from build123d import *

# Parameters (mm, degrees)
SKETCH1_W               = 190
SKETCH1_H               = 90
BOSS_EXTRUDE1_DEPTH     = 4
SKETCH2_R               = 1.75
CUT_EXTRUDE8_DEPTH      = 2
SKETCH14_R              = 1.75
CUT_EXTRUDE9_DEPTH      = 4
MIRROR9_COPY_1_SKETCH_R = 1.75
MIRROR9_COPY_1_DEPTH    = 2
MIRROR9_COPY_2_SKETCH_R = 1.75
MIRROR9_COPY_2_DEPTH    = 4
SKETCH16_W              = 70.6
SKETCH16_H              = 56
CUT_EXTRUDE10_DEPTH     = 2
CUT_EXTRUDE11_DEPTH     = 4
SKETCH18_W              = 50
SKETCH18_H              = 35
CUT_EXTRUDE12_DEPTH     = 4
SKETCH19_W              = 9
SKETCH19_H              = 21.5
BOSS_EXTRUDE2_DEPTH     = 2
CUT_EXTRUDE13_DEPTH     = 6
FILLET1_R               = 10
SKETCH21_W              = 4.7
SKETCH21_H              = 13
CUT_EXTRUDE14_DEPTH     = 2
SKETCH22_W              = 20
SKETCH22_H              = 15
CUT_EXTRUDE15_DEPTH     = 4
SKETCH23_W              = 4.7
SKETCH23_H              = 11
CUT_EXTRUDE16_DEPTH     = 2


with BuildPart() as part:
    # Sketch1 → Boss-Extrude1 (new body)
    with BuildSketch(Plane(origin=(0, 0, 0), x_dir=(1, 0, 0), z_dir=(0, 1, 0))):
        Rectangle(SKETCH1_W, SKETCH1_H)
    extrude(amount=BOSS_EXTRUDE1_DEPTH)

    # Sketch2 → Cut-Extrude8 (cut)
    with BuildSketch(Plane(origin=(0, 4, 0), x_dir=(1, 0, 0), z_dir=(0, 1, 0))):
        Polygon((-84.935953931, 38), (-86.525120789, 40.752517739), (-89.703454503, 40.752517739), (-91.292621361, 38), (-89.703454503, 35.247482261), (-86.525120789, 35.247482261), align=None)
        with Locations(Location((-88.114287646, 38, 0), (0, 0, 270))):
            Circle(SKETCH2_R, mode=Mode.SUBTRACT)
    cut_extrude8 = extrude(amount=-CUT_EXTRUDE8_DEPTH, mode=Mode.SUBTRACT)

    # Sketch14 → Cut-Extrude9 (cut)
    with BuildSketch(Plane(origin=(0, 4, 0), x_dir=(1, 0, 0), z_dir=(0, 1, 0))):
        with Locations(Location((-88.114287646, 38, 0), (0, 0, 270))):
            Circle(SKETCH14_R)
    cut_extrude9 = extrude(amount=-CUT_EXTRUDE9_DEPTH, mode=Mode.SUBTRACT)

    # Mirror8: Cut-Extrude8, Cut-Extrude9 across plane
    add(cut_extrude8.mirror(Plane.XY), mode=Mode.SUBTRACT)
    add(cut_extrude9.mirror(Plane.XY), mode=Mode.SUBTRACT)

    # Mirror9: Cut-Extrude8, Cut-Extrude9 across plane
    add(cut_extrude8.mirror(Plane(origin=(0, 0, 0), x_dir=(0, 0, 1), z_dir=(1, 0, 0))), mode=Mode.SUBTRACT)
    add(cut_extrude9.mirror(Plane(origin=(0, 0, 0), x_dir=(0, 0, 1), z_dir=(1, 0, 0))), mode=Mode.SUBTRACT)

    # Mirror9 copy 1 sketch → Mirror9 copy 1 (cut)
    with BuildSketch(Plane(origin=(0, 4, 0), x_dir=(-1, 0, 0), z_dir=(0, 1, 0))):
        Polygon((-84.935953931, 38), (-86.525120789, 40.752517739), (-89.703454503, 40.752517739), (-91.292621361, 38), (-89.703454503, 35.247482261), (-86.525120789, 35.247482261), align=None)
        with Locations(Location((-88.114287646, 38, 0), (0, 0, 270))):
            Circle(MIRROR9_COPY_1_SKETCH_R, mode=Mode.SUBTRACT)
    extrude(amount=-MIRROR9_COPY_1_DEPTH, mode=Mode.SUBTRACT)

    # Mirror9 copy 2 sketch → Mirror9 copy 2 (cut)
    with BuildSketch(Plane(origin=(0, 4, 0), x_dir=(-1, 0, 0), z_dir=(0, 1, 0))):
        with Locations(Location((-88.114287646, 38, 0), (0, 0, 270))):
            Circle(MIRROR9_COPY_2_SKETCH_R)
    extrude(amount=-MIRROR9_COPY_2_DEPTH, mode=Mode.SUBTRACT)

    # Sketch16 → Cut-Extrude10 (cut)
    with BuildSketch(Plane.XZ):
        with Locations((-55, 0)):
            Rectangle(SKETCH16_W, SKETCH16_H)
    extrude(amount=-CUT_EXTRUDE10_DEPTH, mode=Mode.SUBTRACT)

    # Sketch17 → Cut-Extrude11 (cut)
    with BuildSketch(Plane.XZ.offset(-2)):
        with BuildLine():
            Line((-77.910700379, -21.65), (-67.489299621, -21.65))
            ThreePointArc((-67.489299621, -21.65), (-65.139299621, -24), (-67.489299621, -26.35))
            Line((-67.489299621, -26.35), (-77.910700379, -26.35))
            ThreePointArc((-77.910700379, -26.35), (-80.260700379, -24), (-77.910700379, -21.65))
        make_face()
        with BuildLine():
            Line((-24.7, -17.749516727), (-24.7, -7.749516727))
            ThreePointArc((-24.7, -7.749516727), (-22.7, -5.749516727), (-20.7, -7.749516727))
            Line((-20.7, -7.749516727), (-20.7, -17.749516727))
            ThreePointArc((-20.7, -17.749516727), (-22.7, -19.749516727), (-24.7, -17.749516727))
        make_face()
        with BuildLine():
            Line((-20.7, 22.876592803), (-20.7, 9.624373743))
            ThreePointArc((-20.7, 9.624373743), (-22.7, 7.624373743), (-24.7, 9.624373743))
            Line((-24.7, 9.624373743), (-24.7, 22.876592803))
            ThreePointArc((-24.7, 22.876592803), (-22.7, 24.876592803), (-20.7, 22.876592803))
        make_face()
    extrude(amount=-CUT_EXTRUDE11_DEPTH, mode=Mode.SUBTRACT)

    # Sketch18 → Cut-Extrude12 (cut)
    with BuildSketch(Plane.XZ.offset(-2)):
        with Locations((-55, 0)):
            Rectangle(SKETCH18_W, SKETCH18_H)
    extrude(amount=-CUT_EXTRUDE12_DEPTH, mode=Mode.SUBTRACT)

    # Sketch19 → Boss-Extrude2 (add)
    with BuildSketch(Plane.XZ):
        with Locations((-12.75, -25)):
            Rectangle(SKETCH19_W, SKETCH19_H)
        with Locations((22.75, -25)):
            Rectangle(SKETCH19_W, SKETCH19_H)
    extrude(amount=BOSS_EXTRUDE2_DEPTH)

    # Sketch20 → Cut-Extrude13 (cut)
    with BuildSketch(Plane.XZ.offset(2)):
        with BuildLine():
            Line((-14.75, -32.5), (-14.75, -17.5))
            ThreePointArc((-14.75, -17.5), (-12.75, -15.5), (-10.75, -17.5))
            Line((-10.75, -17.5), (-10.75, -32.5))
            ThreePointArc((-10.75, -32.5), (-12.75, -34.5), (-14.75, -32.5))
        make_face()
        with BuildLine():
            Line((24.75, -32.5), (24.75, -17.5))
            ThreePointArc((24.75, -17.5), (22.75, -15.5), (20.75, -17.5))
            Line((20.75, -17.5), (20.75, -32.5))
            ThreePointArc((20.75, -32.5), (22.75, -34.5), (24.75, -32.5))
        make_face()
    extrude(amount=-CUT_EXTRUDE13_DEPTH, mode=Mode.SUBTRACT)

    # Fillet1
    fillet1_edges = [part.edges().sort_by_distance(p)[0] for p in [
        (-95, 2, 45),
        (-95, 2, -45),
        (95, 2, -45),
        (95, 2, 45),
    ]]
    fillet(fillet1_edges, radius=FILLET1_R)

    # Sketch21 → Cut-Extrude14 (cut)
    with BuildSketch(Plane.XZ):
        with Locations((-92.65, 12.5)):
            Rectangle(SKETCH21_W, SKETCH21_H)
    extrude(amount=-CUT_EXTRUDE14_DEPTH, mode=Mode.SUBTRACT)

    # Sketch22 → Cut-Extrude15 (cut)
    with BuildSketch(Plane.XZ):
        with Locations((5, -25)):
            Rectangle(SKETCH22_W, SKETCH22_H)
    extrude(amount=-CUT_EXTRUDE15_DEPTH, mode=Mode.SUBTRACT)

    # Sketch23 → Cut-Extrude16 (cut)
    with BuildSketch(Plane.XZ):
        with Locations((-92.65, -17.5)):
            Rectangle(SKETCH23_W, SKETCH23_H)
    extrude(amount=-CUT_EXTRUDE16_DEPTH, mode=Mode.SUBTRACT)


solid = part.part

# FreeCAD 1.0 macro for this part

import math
import FreeCAD as App
import Part
import Sketcher

V = App.Vector
Q = App.Units.Quantity


def edges_at(feature, points):
    """Names of the edges that pass closest to the given points."""
    edges = feature.Shape.Edges
    near = lambda p: min(range(len(edges)), key=lambda i: edges[i].distToShape(Part.Vertex(*p))[0])
    return sorted({f"Edge{near(p) + 1}" for p in points})


def add_polygon(sketch, points):
    """Adds a closed chain of lines whose ends are joined by coincident constraints."""
    first, n = sketch.GeometryCount, len(points)
    for a, b in zip(points, points[1:] + points[:1]):
        sketch.addGeometry(Part.LineSegment(App.Vector(*a, 0), App.Vector(*b, 0)), False)
    for i in range(n):
        sketch.addConstraint(Sketcher.Constraint("Coincident", first + i, 2, first + (i + 1) % n, 1))

doc = App.newDocument("Part")
params = doc.addObject("Spreadsheet::Sheet", "Params")
for row, (alias, value) in enumerate([
    ("sketch1_width", "190 mm"),
    ("sketch1_height", "90 mm"),
    ("pad1_length", "4 mm"),
    ("sketch2_diameter", "3.5 mm"),
    ("pocket1_length", "2 mm"),
    ("sketch3_diameter", "3.5 mm"),
    ("pocket2_length", "4 mm"),
    ("sketch4_diameter", "3.5 mm"),
    ("pocket3_length", "2 mm"),
    ("sketch5_diameter", "3.5 mm"),
    ("pocket4_length", "4 mm"),
    ("sketch6_height", "56 mm"),
    ("sketch6_width", "70.6 mm"),
    ("pocket5_length", "2 mm"),
    ("sketch7_radius", "2 mm"),
    ("sketch7_height", "10 mm"),
    ("sketch7_radius2", "2.35 mm"),
    ("pocket6_length", "4 mm"),
    ("sketch8_width", "50 mm"),
    ("sketch8_height", "35 mm"),
    ("pocket7_length", "4 mm"),
    ("sketch9_width", "9 mm"),
    ("sketch9_height", "21.5 mm"),
    ("pad2_length", "2 mm"),
    ("sketch10_radius", "2 mm"),
    ("sketch10_height", "15 mm"),
    ("pocket8_length", "6 mm"),
    ("fillet_radius", "10 mm"),
    ("sketch11_height", "13 mm"),
    ("sketch11_width", "4.7 mm"),
    ("pocket9_length", "2 mm"),
    ("sketch12_width", "20 mm"),
    ("sketch12_height", "15 mm"),
    ("pocket10_length", "4 mm"),
    ("sketch13_height", "11 mm"),
    ("sketch13_width", "4.7 mm"),
    ("pocket11_length", "2 mm"),
], start=1):
    params.set(f"A{row}", alias)
    params.set(f"B{row}", "=" + value)
    params.setAlias(f"B{row}", alias)

body = doc.addObject("PartDesign::Body", "Body")

sketch1 = doc.addObject("Sketcher::SketchObject", "Sketch")
body.addObject(sketch1)
sketch1.AttachmentSupport = (doc.XZ_Plane, [""])
sketch1.MapMode = "FlatFace"
add_polygon(sketch1, [(-95, -45), (-95, 45), (95, 45), (95, -45)])
sketch1.addConstraint([
    Sketcher.Constraint("Vertical", 0),
    Sketcher.Constraint("Horizontal", 1),
    Sketcher.Constraint("Vertical", 2),
    Sketcher.Constraint("Horizontal", 3),
    Sketcher.Constraint("Symmetric", 0, 2, 2, 2, -1, 1),
    Sketcher.Constraint("DistanceX", 1, 1, 1, 2, 190.0),
    Sketcher.Constraint("DistanceY", 0, 1, 0, 2, 90.0),
])
sketch1.setExpression("Constraints[9]", "Params.sketch1_width")
sketch1.setExpression("Constraints[10]", "Params.sketch1_height")
pad1 = doc.addObject("PartDesign::Pad", "Pad")
body.addObject(pad1)
pad1.Profile = sketch1
pad1.setExpression("Length", "Params.pad1_length")
pad1.Reversed = True

sketch2 = doc.addObject("Sketcher::SketchObject", "Sketch001")
body.addObject(sketch2)
sketch2.AttachmentSupport = (doc.XZ_Plane, [""])
sketch2.MapMode = "FlatFace"
sketch2.AttachmentOffset = App.Placement(V(0, 0, -4), App.Rotation())
add_polygon(sketch2, [(-84.9, -38), (-86.5, -40.8), (-89.7, -40.8), (-91.3, -38), (-89.7, -35.2), (-86.5, -35.2)])
sketch2.addGeometry(Part.Circle(V(-88.1, -38, 0), V(0, 0, 1), 1.8), False)
sketch2.addConstraint([
    Sketcher.Constraint("Horizontal", 1),
    Sketcher.Constraint("Horizontal", 4),
    Sketcher.Constraint("Parallel", 0, 3),
    Sketcher.Constraint("Parallel", 2, 5),
    Sketcher.Constraint("Horizontal", 6, 3, 2, 2),
    Sketcher.Constraint("Horizontal", 2, 2, 5, 2),
    Sketcher.Constraint("Vertical", 1, 2, 3, 2),
    Sketcher.Constraint("Vertical", 0, 2, 4, 2),
    Sketcher.Constraint("Diameter", 6, 3.5),
    Sketcher.Constraint("Angle", 0, Q("-120 deg")),
    Sketcher.Constraint("DistanceY", 6, 3, -1, 1, 38.0),
    Sketcher.Constraint("DistanceX", 2, 2, 0, 2, 4.767501),
    Sketcher.Constraint("DistanceX", 1, 2, 1, 1, 3.178334),
    Sketcher.Constraint("DistanceX", 0, 2, -1, 1, 86.525121),
    Sketcher.Constraint("DistanceX", 6, 3, -1, 1, 88.114288),
])
sketch2.setExpression("Constraints[14]", "Params.sketch2_diameter")
pocket1 = doc.addObject("PartDesign::Pocket", "Pocket")
body.addObject(pocket1)
pocket1.Profile = sketch2
pocket1.setExpression("Length", "Params.pocket1_length")
pocket1.Reversed = True

sketch3 = doc.addObject("Sketcher::SketchObject", "Sketch002")
body.addObject(sketch3)
sketch3.AttachmentSupport = (doc.XZ_Plane, [""])
sketch3.MapMode = "FlatFace"
sketch3.AttachmentOffset = App.Placement(V(0, 0, -4), App.Rotation())
sketch3.addGeometry(Part.Circle(V(-88.1, -38, 0), V(0, 0, 1), 1.8), False)
sketch3.addConstraint([
    Sketcher.Constraint("Diameter", 0, 3.5),
    Sketcher.Constraint("DistanceY", 0, 3, -1, 1, 38.0),
    Sketcher.Constraint("DistanceX", 0, 3, -1, 1, 88.114288),
])
sketch3.setExpression("Constraints[0]", "Params.sketch3_diameter")
pocket2 = doc.addObject("PartDesign::Pocket", "Pocket001")
body.addObject(pocket2)
pocket2.Profile = sketch3
pocket2.setExpression("Length", "Params.pocket2_length")
pocket2.Reversed = True
doc.recompute()

mirrored = doc.addObject("PartDesign::Mirrored", "Mirrored")
body.addObject(mirrored)
mirrored.Originals = [pocket1, pocket2]
mirrored.MirrorPlane = (doc.XY_Plane, [""])
body.Tip = mirrored
doc.recompute()

mirrored2 = doc.addObject("PartDesign::Mirrored", "Mirrored001")
body.addObject(mirrored2)
mirrored2.Originals = [pocket1, pocket2]
mirrored2.MirrorPlane = (doc.YZ_Plane, [""])
body.Tip = mirrored2

sketch4 = doc.addObject("Sketcher::SketchObject", "Sketch003")
body.addObject(sketch4)
sketch4.AttachmentSupport = (doc.XZ_Plane, [""])
sketch4.MapMode = "FlatFace"
sketch4.AttachmentOffset = App.Placement(V(0, 0, -4), App.Rotation())
add_polygon(sketch4, [(84.9, 38), (86.5, 40.8), (89.7, 40.8), (91.3, 38), (89.7, 35.2), (86.5, 35.2)])
sketch4.addGeometry(Part.Circle(V(88.1, 38, 0), V(0, 0, 1), 1.8), False)
sketch4.addConstraint([
    Sketcher.Constraint("Horizontal", 1),
    Sketcher.Constraint("Horizontal", 4),
    Sketcher.Constraint("Parallel", 0, 3),
    Sketcher.Constraint("Parallel", 2, 5),
    Sketcher.Constraint("Horizontal", 6, 3, 2, 2),
    Sketcher.Constraint("Horizontal", 2, 2, 5, 2),
    Sketcher.Constraint("Vertical", 1, 2, 3, 2),
    Sketcher.Constraint("Vertical", 0, 2, 4, 2),
    Sketcher.Constraint("Diameter", 6, 3.5),
    Sketcher.Constraint("Angle", 0, Q("60 deg")),
    Sketcher.Constraint("DistanceY", -1, 1, 6, 3, 38.0),
    Sketcher.Constraint("DistanceX", 0, 2, 2, 2, 4.767501),
    Sketcher.Constraint("DistanceX", 1, 1, 1, 2, 3.178334),
    Sketcher.Constraint("DistanceX", -1, 1, 0, 2, 86.525121),
    Sketcher.Constraint("DistanceX", -1, 1, 6, 3, 88.114288),
])
sketch4.setExpression("Constraints[14]", "Params.sketch4_diameter")
pocket3 = doc.addObject("PartDesign::Pocket", "Pocket002")
body.addObject(pocket3)
pocket3.Profile = sketch4
pocket3.setExpression("Length", "Params.pocket3_length")
pocket3.Reversed = True

sketch5 = doc.addObject("Sketcher::SketchObject", "Sketch004")
body.addObject(sketch5)
sketch5.AttachmentSupport = (doc.XZ_Plane, [""])
sketch5.MapMode = "FlatFace"
sketch5.AttachmentOffset = App.Placement(V(0, 0, -4), App.Rotation())
sketch5.addGeometry(Part.Circle(V(88.1, 38, 0), V(0, 0, 1), 1.8), False)
sketch5.addConstraint([
    Sketcher.Constraint("Diameter", 0, 3.5),
    Sketcher.Constraint("DistanceY", -1, 1, 0, 3, 38.0),
    Sketcher.Constraint("DistanceX", -1, 1, 0, 3, 88.114288),
])
sketch5.setExpression("Constraints[0]", "Params.sketch5_diameter")
pocket4 = doc.addObject("PartDesign::Pocket", "Pocket003")
body.addObject(pocket4)
pocket4.Profile = sketch5
pocket4.setExpression("Length", "Params.pocket4_length")
pocket4.Reversed = True

sketch6 = doc.addObject("Sketcher::SketchObject", "Sketch005")
body.addObject(sketch6)
sketch6.AttachmentSupport = (doc.XZ_Plane, [""])
sketch6.MapMode = "FlatFace"
add_polygon(sketch6, [(-90, 28), (-90, -28), (-20, -28), (-20, 28)])
sketch6.addConstraint([
    Sketcher.Constraint("Vertical", 0),
    Sketcher.Constraint("Horizontal", 1),
    Sketcher.Constraint("Vertical", 2),
    Sketcher.Constraint("Horizontal", 3),
    Sketcher.Constraint("DistanceY", 0, 2, 0, 1, 56.0),
    Sketcher.Constraint("DistanceX", 1, 1, 1, 2, 70.6),
    Sketcher.Constraint("DistanceY", 0, 2, -1, 1, 28.0),
    Sketcher.Constraint("DistanceX", 0, 2, -1, 1, 90.3),
])
sketch6.setExpression("Constraints[8]", "Params.sketch6_height")
sketch6.setExpression("Constraints[9]", "Params.sketch6_width")
pocket5 = doc.addObject("PartDesign::Pocket", "Pocket004")
body.addObject(pocket5)
pocket5.Profile = sketch6
pocket5.setExpression("Length", "Params.pocket5_length")

sketch7 = doc.addObject("Sketcher::SketchObject", "Sketch006")
body.addObject(sketch7)
sketch7.AttachmentSupport = (doc.XZ_Plane, [""])
sketch7.MapMode = "FlatFace"
sketch7.AttachmentOffset = App.Placement(V(0, 0, -2), App.Rotation())
sketch7.addGeometry([
    Part.LineSegment(V(-67.5, -21.6, 0), V(-77.9, -21.6, 0)),
    Part.ArcOfCircle(Part.Circle(V(-77.9, -24, 0), V(0, 0, 1), 2.4), math.radians(90), math.radians(270)),
    Part.LineSegment(V(-77.9, -26.4, 0), V(-67.5, -26.4, 0)),
    Part.ArcOfCircle(Part.Circle(V(-67.5, -24, 0), V(0, 0, 1), 2.4), math.radians(-90), math.radians(90)),
    Part.LineSegment(V(-24.7, -7.7, 0), V(-24.7, -17.7, 0)),
    Part.ArcOfCircle(Part.Circle(V(-22.7, -17.7, 0), V(0, 0, 1), 2), math.radians(180), math.radians(360)),
    Part.LineSegment(V(-20.7, -17.7, 0), V(-20.7, -7.7, 0)),
    Part.ArcOfCircle(Part.Circle(V(-22.7, -7.7, 0), V(0, 0, 1), 2), math.radians(0), math.radians(180)),
    Part.LineSegment(V(-20.7, 9.6, 0), V(-20.7, 22.9, 0)),
    Part.ArcOfCircle(Part.Circle(V(-22.7, 22.9, 0), V(0, 0, 1), 2), math.radians(0), math.radians(180)),
    Part.LineSegment(V(-24.7, 22.9, 0), V(-24.7, 9.6, 0)),
    Part.ArcOfCircle(Part.Circle(V(-22.7, 9.6, 0), V(0, 0, 1), 2), math.radians(180), math.radians(360)),
], False)
sketch7.addConstraint([
    Sketcher.Constraint("Tangent", 0, 2, 1, 1),
    Sketcher.Constraint("Tangent", 1, 2, 2, 1),
    Sketcher.Constraint("Tangent", 2, 2, 3, 1),
    Sketcher.Constraint("Tangent", 3, 2, 0, 1),
    Sketcher.Constraint("Tangent", 4, 2, 5, 1),
    Sketcher.Constraint("Tangent", 5, 2, 6, 1),
    Sketcher.Constraint("Tangent", 6, 2, 7, 1),
    Sketcher.Constraint("Tangent", 7, 2, 4, 1),
    Sketcher.Constraint("Tangent", 8, 2, 9, 1),
    Sketcher.Constraint("Tangent", 9, 2, 10, 1),
    Sketcher.Constraint("Tangent", 10, 2, 11, 1),
    Sketcher.Constraint("Tangent", 11, 2, 8, 1),
    Sketcher.Constraint("Horizontal", 0),
    Sketcher.Constraint("Horizontal", 2),
    Sketcher.Constraint("Vertical", 4),
    Sketcher.Constraint("Vertical", 6),
    Sketcher.Constraint("Vertical", 8),
    Sketcher.Constraint("Vertical", 10),
    Sketcher.Constraint("Equal", 7, 9),
    Sketcher.Constraint("Vertical", 7, 3, 9, 3),
    Sketcher.Constraint("Radius", 5, 2.0),
    Sketcher.Constraint("DistanceY", 4, 2, 4, 1, 10.0),
    Sketcher.Constraint("Radius", 1, 2.35),
    Sketcher.Constraint("DistanceY", 1, 3, -1, 1, 24.0),
    Sketcher.Constraint("DistanceX", 5, 3, -1, 1, 22.7),
    Sketcher.Constraint("DistanceX", 0, 2, 0, 1, 10.421401),
    Sketcher.Constraint("DistanceY", 8, 1, 8, 2, 13.252219),
    Sketcher.Constraint("DistanceX", 1, 3, -1, 1, 77.9107),
    Sketcher.Constraint("DistanceY", 7, 3, 9, 3, 30.62611),
    Sketcher.Constraint("DistanceY", 5, 3, -1, 1, 17.749517),
])
sketch7.setExpression("Constraints[20]", "Params.sketch7_radius")
sketch7.setExpression("Constraints[21]", "Params.sketch7_height")
sketch7.setExpression("Constraints[22]", "Params.sketch7_radius2")
pocket6 = doc.addObject("PartDesign::Pocket", "Pocket005")
body.addObject(pocket6)
pocket6.Profile = sketch7
pocket6.setExpression("Length", "Params.pocket6_length")

sketch8 = doc.addObject("Sketcher::SketchObject", "Sketch007")
body.addObject(sketch8)
sketch8.AttachmentSupport = (doc.XZ_Plane, [""])
sketch8.MapMode = "FlatFace"
sketch8.AttachmentOffset = App.Placement(V(0, 0, -2), App.Rotation())
add_polygon(sketch8, [(-80, 18), (-80, -18), (-30, -18), (-30, 18)])
sketch8.addConstraint([
    Sketcher.Constraint("Vertical", 0),
    Sketcher.Constraint("Horizontal", 1),
    Sketcher.Constraint("Vertical", 2),
    Sketcher.Constraint("Horizontal", 3),
    Sketcher.Constraint("DistanceX", 1, 1, 1, 2, 50.0),
    Sketcher.Constraint("DistanceY", 0, 2, 0, 1, 35.0),
    Sketcher.Constraint("DistanceX", 0, 2, -1, 1, 80.0),
    Sketcher.Constraint("DistanceY", 0, 2, -1, 1, 17.5),
])
sketch8.setExpression("Constraints[8]", "Params.sketch8_width")
sketch8.setExpression("Constraints[9]", "Params.sketch8_height")
pocket7 = doc.addObject("PartDesign::Pocket", "Pocket006")
body.addObject(pocket7)
pocket7.Profile = sketch8
pocket7.setExpression("Length", "Params.pocket7_length")

sketch9 = doc.addObject("Sketcher::SketchObject", "Sketch008")
body.addObject(sketch9)
sketch9.AttachmentSupport = (doc.XZ_Plane, [""])
sketch9.MapMode = "FlatFace"
add_polygon(sketch9, [(-17, -14), (-17, -36), (-8, -36), (-8, -14)])
add_polygon(sketch9, [(18, -14), (18, -36), (27, -36), (27, -14)])
sketch9.addConstraint([
    Sketcher.Constraint("Vertical", 0),
    Sketcher.Constraint("Horizontal", 1),
    Sketcher.Constraint("Vertical", 2),
    Sketcher.Constraint("Horizontal", 3),
    Sketcher.Constraint("Vertical", 4),
    Sketcher.Constraint("Horizontal", 5),
    Sketcher.Constraint("Vertical", 6),
    Sketcher.Constraint("Horizontal", 7),
    Sketcher.Constraint("Horizontal", 1, 2, 4, 2),
    Sketcher.Constraint("Horizontal", 3, 2, 6, 2),
    Sketcher.Constraint("Equal", 3, 5),
    Sketcher.Constraint("DistanceX", 1, 1, 1, 2, 9.0),
    Sketcher.Constraint("DistanceY", 0, 2, 0, 1, 21.5),
    Sketcher.Constraint("DistanceX", 1, 2, 4, 2, 26.5),
    Sketcher.Constraint("DistanceX", 0, 2, -1, 1, 17.25),
    Sketcher.Constraint("DistanceY", 0, 2, -1, 1, 35.75),
])
sketch9.setExpression("Constraints[19]", "Params.sketch9_width")
sketch9.setExpression("Constraints[20]", "Params.sketch9_height")
pad2 = doc.addObject("PartDesign::Pad", "Pad001")
body.addObject(pad2)
pad2.Profile = sketch9
pad2.setExpression("Length", "Params.pad2_length")

sketch10 = doc.addObject("Sketcher::SketchObject", "Sketch009")
body.addObject(sketch10)
sketch10.AttachmentSupport = (doc.XZ_Plane, [""])
sketch10.MapMode = "FlatFace"
sketch10.AttachmentOffset = App.Placement(V(0, 0, 2), App.Rotation())
sketch10.addGeometry([
    Part.LineSegment(V(-14.8, -17.5, 0), V(-14.8, -32.5, 0)),
    Part.ArcOfCircle(Part.Circle(V(-12.8, -32.5, 0), V(0, 0, 1), 2), math.radians(180), math.radians(360)),
    Part.LineSegment(V(-10.8, -32.5, 0), V(-10.8, -17.5, 0)),
    Part.ArcOfCircle(Part.Circle(V(-12.8, -17.5, 0), V(0, 0, 1), 2), math.radians(0), math.radians(180)),
    Part.LineSegment(V(24.8, -32.5, 0), V(24.8, -17.5, 0)),
    Part.ArcOfCircle(Part.Circle(V(22.8, -17.5, 0), V(0, 0, 1), 2), math.radians(0), math.radians(180)),
    Part.LineSegment(V(20.8, -17.5, 0), V(20.8, -32.5, 0)),
    Part.ArcOfCircle(Part.Circle(V(22.8, -32.5, 0), V(0, 0, 1), 2), math.radians(180), math.radians(360)),
], False)
sketch10.addConstraint([
    Sketcher.Constraint("Tangent", 0, 2, 1, 1),
    Sketcher.Constraint("Tangent", 1, 2, 2, 1),
    Sketcher.Constraint("Tangent", 2, 2, 3, 1),
    Sketcher.Constraint("Tangent", 3, 2, 0, 1),
    Sketcher.Constraint("Tangent", 4, 2, 5, 1),
    Sketcher.Constraint("Tangent", 5, 2, 6, 1),
    Sketcher.Constraint("Tangent", 6, 2, 7, 1),
    Sketcher.Constraint("Tangent", 7, 2, 4, 1),
    Sketcher.Constraint("Vertical", 0),
    Sketcher.Constraint("Vertical", 2),
    Sketcher.Constraint("Vertical", 4),
    Sketcher.Constraint("Vertical", 6),
    Sketcher.Constraint("Equal", 3, 5),
    Sketcher.Constraint("Horizontal", 3, 3, 5, 3),
    Sketcher.Constraint("Horizontal", 1, 3, 7, 3),
    Sketcher.Constraint("Radius", 1, 2.0),
    Sketcher.Constraint("DistanceY", 0, 2, 0, 1, 15.0),
    Sketcher.Constraint("DistanceY", 1, 3, -1, 1, 32.5),
    Sketcher.Constraint("DistanceX", 3, 3, 5, 3, 35.5),
    Sketcher.Constraint("DistanceX", 1, 3, -1, 1, 12.75),
])
sketch10.setExpression("Constraints[15]", "Params.sketch10_radius")
sketch10.setExpression("Constraints[16]", "Params.sketch10_height")
pocket8 = doc.addObject("PartDesign::Pocket", "Pocket007")
body.addObject(pocket8)
pocket8.Profile = sketch10
pocket8.setExpression("Length", "Params.pocket8_length")
doc.recompute()

fillet = doc.addObject("PartDesign::Fillet", "Fillet")
body.addObject(fillet)
fillet.Base = (pocket8, edges_at(pocket8, [
    (-95, 2, 45),
    (-95, 2, -45),
    (95, 2, -45),
    (95, 2, 45),
]))
fillet.setExpression("Radius", "Params.fillet_radius")

sketch11 = doc.addObject("Sketcher::SketchObject", "Sketch010")
body.addObject(sketch11)
sketch11.AttachmentSupport = (doc.XZ_Plane, [""])
sketch11.MapMode = "FlatFace"
add_polygon(sketch11, [(-95, 19), (-95, 6), (-90.3, 6), (-90.3, 19)])
sketch11.addConstraint([
    Sketcher.Constraint("Vertical", 0),
    Sketcher.Constraint("Horizontal", 1),
    Sketcher.Constraint("Vertical", 2),
    Sketcher.Constraint("Horizontal", 3),
    Sketcher.Constraint("DistanceY", 0, 2, 0, 1, 13.0),
    Sketcher.Constraint("DistanceX", 1, 1, 1, 2, 4.7),
    Sketcher.Constraint("DistanceX", 0, 2, -1, 1, 95.0),
    Sketcher.Constraint("DistanceY", -1, 1, 0, 2, 6.0),
])
sketch11.setExpression("Constraints[8]", "Params.sketch11_height")
sketch11.setExpression("Constraints[9]", "Params.sketch11_width")
pocket9 = doc.addObject("PartDesign::Pocket", "Pocket008")
body.addObject(pocket9)
pocket9.Profile = sketch11
pocket9.setExpression("Length", "Params.pocket9_length")

sketch12 = doc.addObject("Sketcher::SketchObject", "Sketch011")
body.addObject(sketch12)
sketch12.AttachmentSupport = (doc.XZ_Plane, [""])
sketch12.MapMode = "FlatFace"
add_polygon(sketch12, [(-5, -18), (-5, -32), (15, -32), (15, -18)])
sketch12.addConstraint([
    Sketcher.Constraint("Vertical", 0),
    Sketcher.Constraint("Horizontal", 1),
    Sketcher.Constraint("Vertical", 2),
    Sketcher.Constraint("Horizontal", 3),
    Sketcher.Constraint("DistanceX", 1, 1, 1, 2, 20.0),
    Sketcher.Constraint("DistanceY", 0, 2, 0, 1, 15.0),
    Sketcher.Constraint("DistanceX", 0, 2, -1, 1, 5.0),
    Sketcher.Constraint("DistanceY", 0, 2, -1, 1, 32.5),
])
sketch12.setExpression("Constraints[8]", "Params.sketch12_width")
sketch12.setExpression("Constraints[9]", "Params.sketch12_height")
pocket10 = doc.addObject("PartDesign::Pocket", "Pocket009")
body.addObject(pocket10)
pocket10.Profile = sketch12
pocket10.setExpression("Length", "Params.pocket10_length")

sketch13 = doc.addObject("Sketcher::SketchObject", "Sketch012")
body.addObject(sketch13)
sketch13.AttachmentSupport = (doc.XZ_Plane, [""])
sketch13.MapMode = "FlatFace"
add_polygon(sketch13, [(-95, -12), (-95, -23), (-90.3, -23), (-90.3, -12)])
sketch13.addConstraint([
    Sketcher.Constraint("Vertical", 0),
    Sketcher.Constraint("Horizontal", 1),
    Sketcher.Constraint("Vertical", 2),
    Sketcher.Constraint("Horizontal", 3),
    Sketcher.Constraint("DistanceY", 0, 2, 0, 1, 11.0),
    Sketcher.Constraint("DistanceX", 1, 1, 1, 2, 4.7),
    Sketcher.Constraint("DistanceX", 0, 2, -1, 1, 95.0),
    Sketcher.Constraint("DistanceY", 0, 2, -1, 1, 23.0),
])
sketch13.setExpression("Constraints[8]", "Params.sketch13_height")
sketch13.setExpression("Constraints[9]", "Params.sketch13_width")
pocket11 = doc.addObject("PartDesign::Pocket", "Pocket010")
body.addObject(pocket11)
pocket11.Profile = sketch13
pocket11.setExpression("Length", "Params.pocket11_length")

doc.recompute()
